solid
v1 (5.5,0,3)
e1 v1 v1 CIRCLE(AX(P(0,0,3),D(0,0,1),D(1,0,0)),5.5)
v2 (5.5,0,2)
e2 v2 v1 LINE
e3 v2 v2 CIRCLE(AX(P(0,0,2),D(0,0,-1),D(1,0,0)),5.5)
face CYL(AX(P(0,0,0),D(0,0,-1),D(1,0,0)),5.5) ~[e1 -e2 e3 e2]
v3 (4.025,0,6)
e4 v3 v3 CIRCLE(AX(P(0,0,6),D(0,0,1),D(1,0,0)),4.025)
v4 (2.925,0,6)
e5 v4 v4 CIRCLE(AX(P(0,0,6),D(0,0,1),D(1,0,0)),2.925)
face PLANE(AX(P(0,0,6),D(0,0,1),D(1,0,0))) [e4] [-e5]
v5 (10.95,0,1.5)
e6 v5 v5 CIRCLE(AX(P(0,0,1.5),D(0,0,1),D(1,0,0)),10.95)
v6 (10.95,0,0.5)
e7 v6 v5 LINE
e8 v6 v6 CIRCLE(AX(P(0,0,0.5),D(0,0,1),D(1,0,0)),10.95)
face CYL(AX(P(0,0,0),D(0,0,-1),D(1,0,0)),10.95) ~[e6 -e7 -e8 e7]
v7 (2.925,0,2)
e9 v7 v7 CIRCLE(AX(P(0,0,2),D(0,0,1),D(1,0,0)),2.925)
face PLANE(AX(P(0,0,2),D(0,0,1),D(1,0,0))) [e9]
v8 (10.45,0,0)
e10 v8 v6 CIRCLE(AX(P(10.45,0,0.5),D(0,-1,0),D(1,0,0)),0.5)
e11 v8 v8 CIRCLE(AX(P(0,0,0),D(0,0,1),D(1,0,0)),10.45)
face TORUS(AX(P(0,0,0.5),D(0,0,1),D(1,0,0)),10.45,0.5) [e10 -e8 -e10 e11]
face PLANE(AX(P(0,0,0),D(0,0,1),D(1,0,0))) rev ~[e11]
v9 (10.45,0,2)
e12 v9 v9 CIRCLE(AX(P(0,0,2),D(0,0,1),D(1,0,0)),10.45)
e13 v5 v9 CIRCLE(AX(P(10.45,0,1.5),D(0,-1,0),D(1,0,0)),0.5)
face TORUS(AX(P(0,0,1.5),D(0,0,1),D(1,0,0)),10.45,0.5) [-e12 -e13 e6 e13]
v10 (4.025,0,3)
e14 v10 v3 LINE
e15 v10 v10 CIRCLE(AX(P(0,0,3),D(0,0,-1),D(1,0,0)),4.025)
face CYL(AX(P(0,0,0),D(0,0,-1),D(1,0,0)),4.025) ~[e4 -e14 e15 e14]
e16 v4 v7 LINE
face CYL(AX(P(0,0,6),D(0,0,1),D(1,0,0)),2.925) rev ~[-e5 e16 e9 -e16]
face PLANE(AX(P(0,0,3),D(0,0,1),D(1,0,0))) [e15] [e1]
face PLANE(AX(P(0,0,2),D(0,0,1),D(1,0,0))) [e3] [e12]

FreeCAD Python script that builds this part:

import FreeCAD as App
import Part
import Sketcher
Q = App.Units.Quantity


def edges_at(feature, points):
    """Names of the edges that pass closest to the given points."""
    edges = feature.Shape.Edges
    near = lambda p: min(range(len(edges)), key=lambda i: edges[i].distToShape(Part.Vertex(*p))[0])
    return sorted({f"Edge{near(p) + 1}" for p in points})

doc = App.newDocument("Part")
body = doc.addObject("PartDesign::Body", "Body")

sketch1 = body.newObject("Sketcher::SketchObject", "Sketch")
sketch1.AttachmentSupport = (doc.getObject("XY_Plane"), [""])
sketch1.MapMode = "FlatFace"
sketch1.addGeometry([
    Part.Circle(App.Vector(0, 0, 0), App.Vector(0, 0, 1), 10.95),
    Part.Circle(App.Vector(0, 0, 0), App.Vector(0, 0, 1), 0.069),
], False)
sketch1.addConstraint([
    Sketcher.Constraint("Coincident", 0, 3, -1, 1),
    Sketcher.Constraint("Coincident", 1, 3, -1, 1),
    Sketcher.Constraint("Diameter", 0, Q("21.9 mm")),
    Sketcher.Constraint("Diameter", 1, Q("0.138 mm")),
])
pad1 = body.newObject("PartDesign::Pad", "Pad")
pad1.Profile = sketch1
pad1.Length = 2

sketch2 = body.newObject("Sketcher::SketchObject", "Sketch001")
sketch2.AttachmentSupport = (doc.getObject("XY_Plane"), [""])
sketch2.MapMode = "FlatFace"
sketch2.addGeometry(Part.Circle(App.Vector(0, 0, 0), App.Vector(0, 0, 1), 5.5), False)
sketch2.addConstraint([
    Sketcher.Constraint("Coincident", 0, 3, -1, 1),
    Sketcher.Constraint("Diameter", 0, Q("11 mm")),
])
pad2 = body.newObject("PartDesign::Pad", "Pad001")
pad2.Profile = sketch2
pad2.Length = 3

sketch3 = body.newObject("Sketcher::SketchObject", "Sketch002")
sketch3.AttachmentSupport = (doc.getObject("XY_Plane"), [""])
sketch3.MapMode = "FlatFace"
sketch3.addGeometry(Part.Circle(App.Vector(0, 0, 0), App.Vector(0, 0, 1), 4.025), False)
sketch3.addConstraint([
    Sketcher.Constraint("Coincident", 0, 3, -1, 1),
    Sketcher.Constraint("Diameter", 0, Q("8.05 mm")),
])
pad3 = body.newObject("PartDesign::Pad", "Pad002")
pad3.Profile = sketch3
pad3.Length = 6
doc.recompute()

fillet = body.newObject("PartDesign::Fillet", "Fillet")
fillet.Base = (pad3, edges_at(pad3, [(10.95, 0, 1), (-10.95, 0, 0), (-10.95, 0, 2)]))
fillet.Radius = 0.5

sketch4 = body.newObject("Sketcher::SketchObject", "Sketch003")
sketch4.AttachmentSupport = (doc.getObject("XY_Plane"), [""])
sketch4.MapMode = "FlatFace"
sketch4.AttachmentOffset = App.Placement(App.Vector(0, 0, 6), App.Rotation())
sketch4.addGeometry(Part.Circle(App.Vector(0, 0, 0), App.Vector(0, 0, 1), 2.925), False)
sketch4.addConstraint([
    Sketcher.Constraint("Coincident", 0, 3, -1, 1),
    Sketcher.Constraint("Diameter", 0, Q("5.85 mm")),
])
pocket1 = body.newObject("PartDesign::Pocket", "Pocket")
pocket1.Profile = sketch4
pocket1.Length = 4

doc.recompute()
